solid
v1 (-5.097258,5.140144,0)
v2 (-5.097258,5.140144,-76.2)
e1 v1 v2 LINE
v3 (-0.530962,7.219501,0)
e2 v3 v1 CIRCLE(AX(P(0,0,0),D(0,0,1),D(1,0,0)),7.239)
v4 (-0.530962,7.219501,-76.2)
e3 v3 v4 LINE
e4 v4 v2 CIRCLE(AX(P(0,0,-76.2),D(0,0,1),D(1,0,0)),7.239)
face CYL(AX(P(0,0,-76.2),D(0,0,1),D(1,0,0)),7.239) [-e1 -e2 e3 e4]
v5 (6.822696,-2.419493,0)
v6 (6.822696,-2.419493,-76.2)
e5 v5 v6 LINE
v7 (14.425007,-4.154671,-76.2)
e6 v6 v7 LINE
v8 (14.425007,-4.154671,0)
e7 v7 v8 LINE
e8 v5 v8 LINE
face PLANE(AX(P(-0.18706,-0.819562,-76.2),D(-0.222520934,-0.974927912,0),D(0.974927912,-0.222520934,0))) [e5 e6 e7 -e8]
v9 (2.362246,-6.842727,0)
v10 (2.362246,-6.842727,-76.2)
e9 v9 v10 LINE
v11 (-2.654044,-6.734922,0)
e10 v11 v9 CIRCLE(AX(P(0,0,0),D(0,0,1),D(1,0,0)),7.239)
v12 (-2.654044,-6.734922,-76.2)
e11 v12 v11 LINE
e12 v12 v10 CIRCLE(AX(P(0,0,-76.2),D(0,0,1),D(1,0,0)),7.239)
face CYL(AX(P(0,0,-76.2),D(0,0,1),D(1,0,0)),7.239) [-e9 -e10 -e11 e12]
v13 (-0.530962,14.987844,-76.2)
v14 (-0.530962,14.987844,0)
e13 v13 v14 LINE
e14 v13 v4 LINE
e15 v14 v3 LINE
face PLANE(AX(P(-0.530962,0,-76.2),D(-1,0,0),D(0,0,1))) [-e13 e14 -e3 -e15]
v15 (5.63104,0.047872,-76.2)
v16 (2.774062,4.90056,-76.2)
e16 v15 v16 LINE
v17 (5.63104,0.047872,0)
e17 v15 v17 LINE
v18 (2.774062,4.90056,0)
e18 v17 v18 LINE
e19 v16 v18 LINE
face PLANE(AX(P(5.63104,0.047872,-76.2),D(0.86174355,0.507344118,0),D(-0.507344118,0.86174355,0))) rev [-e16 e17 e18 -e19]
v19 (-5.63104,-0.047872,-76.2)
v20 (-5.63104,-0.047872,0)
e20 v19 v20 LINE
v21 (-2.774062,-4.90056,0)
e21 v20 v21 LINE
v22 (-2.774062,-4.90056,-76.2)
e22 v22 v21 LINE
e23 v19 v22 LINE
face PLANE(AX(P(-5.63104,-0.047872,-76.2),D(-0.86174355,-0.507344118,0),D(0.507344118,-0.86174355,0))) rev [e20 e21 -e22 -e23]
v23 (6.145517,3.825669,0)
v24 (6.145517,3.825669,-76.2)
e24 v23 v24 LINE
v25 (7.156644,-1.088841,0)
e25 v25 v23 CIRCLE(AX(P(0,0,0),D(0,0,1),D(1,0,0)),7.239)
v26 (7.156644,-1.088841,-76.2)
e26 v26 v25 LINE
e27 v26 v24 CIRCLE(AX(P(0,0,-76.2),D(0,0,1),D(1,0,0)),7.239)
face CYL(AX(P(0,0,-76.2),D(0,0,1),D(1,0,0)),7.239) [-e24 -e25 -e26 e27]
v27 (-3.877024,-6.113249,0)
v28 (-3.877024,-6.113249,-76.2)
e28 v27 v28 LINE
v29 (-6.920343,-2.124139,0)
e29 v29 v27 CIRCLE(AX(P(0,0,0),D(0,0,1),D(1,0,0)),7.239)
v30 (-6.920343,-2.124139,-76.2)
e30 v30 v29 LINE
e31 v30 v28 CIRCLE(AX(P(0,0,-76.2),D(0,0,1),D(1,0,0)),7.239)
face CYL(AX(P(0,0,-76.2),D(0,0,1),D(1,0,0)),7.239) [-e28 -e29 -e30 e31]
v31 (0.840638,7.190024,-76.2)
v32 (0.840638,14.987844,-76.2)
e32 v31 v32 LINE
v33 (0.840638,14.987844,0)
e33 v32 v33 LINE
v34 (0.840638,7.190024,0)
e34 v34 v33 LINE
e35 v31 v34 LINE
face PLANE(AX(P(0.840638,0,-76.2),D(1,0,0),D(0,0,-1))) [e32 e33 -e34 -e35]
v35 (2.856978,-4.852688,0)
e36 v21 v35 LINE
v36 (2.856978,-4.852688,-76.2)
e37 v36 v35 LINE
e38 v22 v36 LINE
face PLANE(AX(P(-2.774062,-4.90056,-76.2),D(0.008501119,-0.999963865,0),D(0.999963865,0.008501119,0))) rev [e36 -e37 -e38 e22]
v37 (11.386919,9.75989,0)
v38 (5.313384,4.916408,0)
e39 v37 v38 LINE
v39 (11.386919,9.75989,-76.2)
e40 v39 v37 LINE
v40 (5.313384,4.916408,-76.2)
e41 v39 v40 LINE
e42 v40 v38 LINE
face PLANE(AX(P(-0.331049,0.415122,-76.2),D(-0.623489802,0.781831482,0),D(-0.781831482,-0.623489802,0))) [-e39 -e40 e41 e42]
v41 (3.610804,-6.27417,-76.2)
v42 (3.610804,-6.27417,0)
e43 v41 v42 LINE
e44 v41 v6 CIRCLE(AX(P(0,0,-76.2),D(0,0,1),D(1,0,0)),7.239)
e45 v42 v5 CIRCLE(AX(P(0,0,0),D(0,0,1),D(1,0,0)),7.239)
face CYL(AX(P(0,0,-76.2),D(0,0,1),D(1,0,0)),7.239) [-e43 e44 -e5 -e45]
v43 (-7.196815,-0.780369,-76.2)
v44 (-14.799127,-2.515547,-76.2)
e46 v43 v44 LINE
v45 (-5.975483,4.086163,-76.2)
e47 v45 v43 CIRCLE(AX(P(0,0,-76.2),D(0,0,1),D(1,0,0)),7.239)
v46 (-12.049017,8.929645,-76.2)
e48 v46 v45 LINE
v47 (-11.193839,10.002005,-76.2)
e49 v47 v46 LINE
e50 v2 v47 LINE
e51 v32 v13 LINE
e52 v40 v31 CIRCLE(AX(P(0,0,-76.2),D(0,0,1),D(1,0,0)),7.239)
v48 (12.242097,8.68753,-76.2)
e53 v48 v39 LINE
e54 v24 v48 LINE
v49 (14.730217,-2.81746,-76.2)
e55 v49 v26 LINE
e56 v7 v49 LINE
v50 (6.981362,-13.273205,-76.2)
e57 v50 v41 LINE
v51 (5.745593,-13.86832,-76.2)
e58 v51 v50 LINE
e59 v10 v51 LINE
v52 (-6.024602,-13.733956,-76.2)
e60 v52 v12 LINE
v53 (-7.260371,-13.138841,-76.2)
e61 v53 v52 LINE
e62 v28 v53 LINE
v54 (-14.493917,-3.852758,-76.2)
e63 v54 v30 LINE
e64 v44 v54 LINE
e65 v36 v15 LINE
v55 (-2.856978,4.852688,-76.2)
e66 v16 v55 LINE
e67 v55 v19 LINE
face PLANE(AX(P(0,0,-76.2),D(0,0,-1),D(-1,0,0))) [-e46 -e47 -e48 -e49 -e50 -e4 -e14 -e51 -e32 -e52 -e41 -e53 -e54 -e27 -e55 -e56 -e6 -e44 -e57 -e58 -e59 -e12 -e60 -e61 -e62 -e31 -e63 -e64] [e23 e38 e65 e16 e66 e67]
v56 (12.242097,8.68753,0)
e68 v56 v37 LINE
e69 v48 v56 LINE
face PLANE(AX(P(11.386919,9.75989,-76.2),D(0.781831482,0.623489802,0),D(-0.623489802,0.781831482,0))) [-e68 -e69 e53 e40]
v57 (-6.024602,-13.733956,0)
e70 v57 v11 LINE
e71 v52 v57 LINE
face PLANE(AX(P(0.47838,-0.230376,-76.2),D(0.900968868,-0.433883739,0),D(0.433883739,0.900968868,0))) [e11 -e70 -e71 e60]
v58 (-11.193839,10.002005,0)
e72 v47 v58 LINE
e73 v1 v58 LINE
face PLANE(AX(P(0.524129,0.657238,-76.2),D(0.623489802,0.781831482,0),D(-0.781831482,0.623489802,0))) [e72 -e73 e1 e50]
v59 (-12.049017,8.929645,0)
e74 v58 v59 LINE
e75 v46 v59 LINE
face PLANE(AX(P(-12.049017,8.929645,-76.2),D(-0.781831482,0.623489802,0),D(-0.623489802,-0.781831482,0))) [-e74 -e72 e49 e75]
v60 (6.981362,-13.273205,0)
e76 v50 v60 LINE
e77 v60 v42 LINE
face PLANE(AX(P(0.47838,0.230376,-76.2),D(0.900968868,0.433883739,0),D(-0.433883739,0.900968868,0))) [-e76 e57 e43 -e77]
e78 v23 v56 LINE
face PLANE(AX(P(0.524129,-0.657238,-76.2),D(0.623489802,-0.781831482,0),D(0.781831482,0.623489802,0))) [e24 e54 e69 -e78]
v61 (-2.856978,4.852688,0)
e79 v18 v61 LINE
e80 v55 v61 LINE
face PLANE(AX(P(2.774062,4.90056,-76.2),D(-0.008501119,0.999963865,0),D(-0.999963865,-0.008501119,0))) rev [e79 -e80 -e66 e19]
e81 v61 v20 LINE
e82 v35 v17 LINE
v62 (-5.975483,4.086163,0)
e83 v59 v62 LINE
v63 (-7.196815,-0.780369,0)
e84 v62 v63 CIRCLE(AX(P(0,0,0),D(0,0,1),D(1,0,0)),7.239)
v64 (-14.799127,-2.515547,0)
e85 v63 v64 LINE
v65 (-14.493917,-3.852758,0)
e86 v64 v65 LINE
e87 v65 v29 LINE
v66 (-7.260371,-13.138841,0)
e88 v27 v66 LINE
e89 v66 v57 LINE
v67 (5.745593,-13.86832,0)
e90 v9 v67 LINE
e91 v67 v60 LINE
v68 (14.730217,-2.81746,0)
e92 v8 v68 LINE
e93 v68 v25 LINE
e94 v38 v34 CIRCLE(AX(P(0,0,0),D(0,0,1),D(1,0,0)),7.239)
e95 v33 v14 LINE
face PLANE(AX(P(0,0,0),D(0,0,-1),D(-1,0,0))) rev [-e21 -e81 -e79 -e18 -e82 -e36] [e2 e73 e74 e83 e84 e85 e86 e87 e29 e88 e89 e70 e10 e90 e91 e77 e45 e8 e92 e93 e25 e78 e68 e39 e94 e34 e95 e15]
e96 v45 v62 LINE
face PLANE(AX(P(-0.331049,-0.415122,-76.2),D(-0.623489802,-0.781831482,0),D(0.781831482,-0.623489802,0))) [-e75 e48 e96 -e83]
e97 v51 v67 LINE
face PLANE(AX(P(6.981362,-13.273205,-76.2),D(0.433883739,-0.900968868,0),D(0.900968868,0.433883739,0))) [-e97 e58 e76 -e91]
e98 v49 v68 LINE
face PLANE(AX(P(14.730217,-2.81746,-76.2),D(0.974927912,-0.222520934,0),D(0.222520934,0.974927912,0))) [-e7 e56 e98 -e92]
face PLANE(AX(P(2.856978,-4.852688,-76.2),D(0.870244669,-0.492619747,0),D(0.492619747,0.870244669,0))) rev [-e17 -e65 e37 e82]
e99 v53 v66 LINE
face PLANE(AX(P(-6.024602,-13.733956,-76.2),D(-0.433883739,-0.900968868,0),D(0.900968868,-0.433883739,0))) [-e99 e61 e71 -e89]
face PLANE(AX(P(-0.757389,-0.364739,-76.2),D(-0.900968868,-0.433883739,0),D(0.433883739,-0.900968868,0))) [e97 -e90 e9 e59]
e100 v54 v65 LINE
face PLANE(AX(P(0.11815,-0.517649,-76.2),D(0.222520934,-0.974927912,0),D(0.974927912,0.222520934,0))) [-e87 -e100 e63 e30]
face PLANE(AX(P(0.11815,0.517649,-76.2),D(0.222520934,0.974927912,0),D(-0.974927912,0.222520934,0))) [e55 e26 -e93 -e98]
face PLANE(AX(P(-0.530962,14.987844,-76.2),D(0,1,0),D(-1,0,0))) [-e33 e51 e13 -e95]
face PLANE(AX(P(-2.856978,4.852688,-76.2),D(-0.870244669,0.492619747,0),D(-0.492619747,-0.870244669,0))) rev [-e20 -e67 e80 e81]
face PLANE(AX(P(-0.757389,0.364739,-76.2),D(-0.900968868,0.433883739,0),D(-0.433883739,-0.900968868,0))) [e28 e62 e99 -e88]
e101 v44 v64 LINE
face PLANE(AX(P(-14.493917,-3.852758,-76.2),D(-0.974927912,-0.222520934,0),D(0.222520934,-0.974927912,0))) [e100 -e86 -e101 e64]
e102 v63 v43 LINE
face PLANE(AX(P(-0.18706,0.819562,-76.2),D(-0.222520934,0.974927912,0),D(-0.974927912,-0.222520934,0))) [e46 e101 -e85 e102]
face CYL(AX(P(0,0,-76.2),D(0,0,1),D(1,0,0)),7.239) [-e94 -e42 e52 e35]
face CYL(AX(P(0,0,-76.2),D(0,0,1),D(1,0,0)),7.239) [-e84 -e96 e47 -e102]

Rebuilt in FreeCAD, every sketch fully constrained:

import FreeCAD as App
import Part
import Sketcher
Q = App.Units.Quantity


def add_polygon(sketch, points):
    """Adds a closed chain of lines whose ends are joined by coincident constraints."""
    first, n = sketch.GeometryCount, len(points)
    for a, b in zip(points, points[1:] + points[:1]):
        sketch.addGeometry(Part.LineSegment(App.Vector(*a, 0), App.Vector(*b, 0)), False)
    for i in range(n):
        sketch.addConstraint(Sketcher.Constraint("Coincident", first + i, 2, first + (i + 1) % n, 1))

doc = App.newDocument("Part")
params = doc.addObject("Spreadsheet::Sheet", "Params")
for row, (alias, value) in enumerate([
    ("sketch1_width", "0.054 in"),
    ("pad1_length", "3 in"),
    ("sketch2_diameter", "0.57 in"),
    ("pad2_length", "3 in"),
], start=1):
    params.set(f"A{row}", alias)
    params.set(f"B{row}", "=" + value)
    params.setAlias(f"B{row}", alias)

body = doc.addObject("PartDesign::Body", "Body")

# Sketch on XY plane
sketch1 = body.newObject("Sketcher::SketchObject", "Sketch")
sketch1.AttachmentSupport = (doc.getObject("XY_Plane"), [""])
sketch1.MapMode = "FlatFace"
add_polygon(sketch1, [(0.8, 0), (0.8, 15), (-0.5, 15), (-0.5, 0)])  # lines 0-3
sketch1.addConstraint([
    Sketcher.Constraint("Vertical", 0),
    Sketcher.Constraint("Horizontal", 1),
    Sketcher.Constraint("Vertical", 2),
    Sketcher.Constraint("Horizontal", 3),
    Sketcher.Constraint("PointOnObject", 2, 2, -1),
    Sketcher.Constraint("DistanceX", 1, 2, 1, 1, Q("0.054 in")),
    Sketcher.Constraint("DistanceY", 0, 1, 0, 2, Q("14.987844 mm")),
    Sketcher.Constraint("DistanceX", -1, 1, 0, 2, Q("0.840638 mm")),
])
sketch1.setExpression("Constraints[9]", "Params.sketch1_width")
pad1 = body.newObject("PartDesign::Pad", "Pad")
pad1.Profile = sketch1
pad1.setExpression("Length", "Params.pad1_length")
pad1.Reversed = True

# Sketch on XY plane
sketch2 = body.newObject("Sketcher::SketchObject", "Sketch001")
sketch2.AttachmentSupport = (doc.getObject("XY_Plane"), [""])
sketch2.MapMode = "FlatFace"
sketch2.addGeometry(Part.Circle(App.Vector(0, 0, 0), App.Vector(0, 0, 1), 7), False)
sketch2.addConstraint([
    Sketcher.Constraint("Coincident", 0, 3, -1, 1),
    Sketcher.Constraint("Diameter", 0, Q("0.57 in")),
])
sketch2.setExpression("Constraints[1]", "Params.sketch2_diameter")
pad2 = body.newObject("PartDesign::Pad", "Pad001")
pad2.Profile = sketch2
pad2.setExpression("Length", "Params.pad2_length")
pad2.Reversed = True
doc.recompute()

polarpattern = body.newObject("PartDesign::PolarPattern", "PolarPattern")
polarpattern.Originals = [pad1]
polarpattern.Axis = (doc.getObject("Z_Axis"), [""])
polarpattern.Angle = 360
polarpattern.Occurrences = 7
body.Tip = polarpattern

# Sketch on XY plane
sketch3 = body.newObject("Sketcher::SketchObject", "Sketch002")
sketch3.AttachmentSupport = (doc.getObject("XY_Plane"), [""])
sketch3.MapMode = "FlatFace"
add_polygon(sketch3, [(6, 0), (3, 5), (-3, 5), (-6, 0), (-3, -5), (3, -5)])  # lines 0-5
sketch3.addConstraint([
    Sketcher.Constraint("Symmetric", 0, 2, 3, 2, -1, 1),
    Sketcher.Constraint("Symmetric", 1, 2, 4, 2, -1, 1),
    Sketcher.Constraint("Symmetric", 2, 2, 5, 2, -1, 1),
    Sketcher.Constraint("Equal", 0, 1),
    Sketcher.Constraint("Equal", 1, 2),
    Sketcher.Constraint("DistanceX", 2, 2, 0, 2, Q("8.405102 mm")),
    Sketcher.Constraint("DistanceX", -1, 1, 0, 2, Q("2.774062 mm")),
    Sketcher.Constraint("DistanceY", -1, 1, 0, 2, Q("4.90056 mm")),
    Sketcher.Constraint("DistanceX", 1, 2, -1, 1, Q("2.856978 mm")),
])
pocket1 = body.newObject("PartDesign::Pocket", "Pocket")
pocket1.Profile = sketch3
pocket1.Type = "ThroughAll"

doc.recompute()
